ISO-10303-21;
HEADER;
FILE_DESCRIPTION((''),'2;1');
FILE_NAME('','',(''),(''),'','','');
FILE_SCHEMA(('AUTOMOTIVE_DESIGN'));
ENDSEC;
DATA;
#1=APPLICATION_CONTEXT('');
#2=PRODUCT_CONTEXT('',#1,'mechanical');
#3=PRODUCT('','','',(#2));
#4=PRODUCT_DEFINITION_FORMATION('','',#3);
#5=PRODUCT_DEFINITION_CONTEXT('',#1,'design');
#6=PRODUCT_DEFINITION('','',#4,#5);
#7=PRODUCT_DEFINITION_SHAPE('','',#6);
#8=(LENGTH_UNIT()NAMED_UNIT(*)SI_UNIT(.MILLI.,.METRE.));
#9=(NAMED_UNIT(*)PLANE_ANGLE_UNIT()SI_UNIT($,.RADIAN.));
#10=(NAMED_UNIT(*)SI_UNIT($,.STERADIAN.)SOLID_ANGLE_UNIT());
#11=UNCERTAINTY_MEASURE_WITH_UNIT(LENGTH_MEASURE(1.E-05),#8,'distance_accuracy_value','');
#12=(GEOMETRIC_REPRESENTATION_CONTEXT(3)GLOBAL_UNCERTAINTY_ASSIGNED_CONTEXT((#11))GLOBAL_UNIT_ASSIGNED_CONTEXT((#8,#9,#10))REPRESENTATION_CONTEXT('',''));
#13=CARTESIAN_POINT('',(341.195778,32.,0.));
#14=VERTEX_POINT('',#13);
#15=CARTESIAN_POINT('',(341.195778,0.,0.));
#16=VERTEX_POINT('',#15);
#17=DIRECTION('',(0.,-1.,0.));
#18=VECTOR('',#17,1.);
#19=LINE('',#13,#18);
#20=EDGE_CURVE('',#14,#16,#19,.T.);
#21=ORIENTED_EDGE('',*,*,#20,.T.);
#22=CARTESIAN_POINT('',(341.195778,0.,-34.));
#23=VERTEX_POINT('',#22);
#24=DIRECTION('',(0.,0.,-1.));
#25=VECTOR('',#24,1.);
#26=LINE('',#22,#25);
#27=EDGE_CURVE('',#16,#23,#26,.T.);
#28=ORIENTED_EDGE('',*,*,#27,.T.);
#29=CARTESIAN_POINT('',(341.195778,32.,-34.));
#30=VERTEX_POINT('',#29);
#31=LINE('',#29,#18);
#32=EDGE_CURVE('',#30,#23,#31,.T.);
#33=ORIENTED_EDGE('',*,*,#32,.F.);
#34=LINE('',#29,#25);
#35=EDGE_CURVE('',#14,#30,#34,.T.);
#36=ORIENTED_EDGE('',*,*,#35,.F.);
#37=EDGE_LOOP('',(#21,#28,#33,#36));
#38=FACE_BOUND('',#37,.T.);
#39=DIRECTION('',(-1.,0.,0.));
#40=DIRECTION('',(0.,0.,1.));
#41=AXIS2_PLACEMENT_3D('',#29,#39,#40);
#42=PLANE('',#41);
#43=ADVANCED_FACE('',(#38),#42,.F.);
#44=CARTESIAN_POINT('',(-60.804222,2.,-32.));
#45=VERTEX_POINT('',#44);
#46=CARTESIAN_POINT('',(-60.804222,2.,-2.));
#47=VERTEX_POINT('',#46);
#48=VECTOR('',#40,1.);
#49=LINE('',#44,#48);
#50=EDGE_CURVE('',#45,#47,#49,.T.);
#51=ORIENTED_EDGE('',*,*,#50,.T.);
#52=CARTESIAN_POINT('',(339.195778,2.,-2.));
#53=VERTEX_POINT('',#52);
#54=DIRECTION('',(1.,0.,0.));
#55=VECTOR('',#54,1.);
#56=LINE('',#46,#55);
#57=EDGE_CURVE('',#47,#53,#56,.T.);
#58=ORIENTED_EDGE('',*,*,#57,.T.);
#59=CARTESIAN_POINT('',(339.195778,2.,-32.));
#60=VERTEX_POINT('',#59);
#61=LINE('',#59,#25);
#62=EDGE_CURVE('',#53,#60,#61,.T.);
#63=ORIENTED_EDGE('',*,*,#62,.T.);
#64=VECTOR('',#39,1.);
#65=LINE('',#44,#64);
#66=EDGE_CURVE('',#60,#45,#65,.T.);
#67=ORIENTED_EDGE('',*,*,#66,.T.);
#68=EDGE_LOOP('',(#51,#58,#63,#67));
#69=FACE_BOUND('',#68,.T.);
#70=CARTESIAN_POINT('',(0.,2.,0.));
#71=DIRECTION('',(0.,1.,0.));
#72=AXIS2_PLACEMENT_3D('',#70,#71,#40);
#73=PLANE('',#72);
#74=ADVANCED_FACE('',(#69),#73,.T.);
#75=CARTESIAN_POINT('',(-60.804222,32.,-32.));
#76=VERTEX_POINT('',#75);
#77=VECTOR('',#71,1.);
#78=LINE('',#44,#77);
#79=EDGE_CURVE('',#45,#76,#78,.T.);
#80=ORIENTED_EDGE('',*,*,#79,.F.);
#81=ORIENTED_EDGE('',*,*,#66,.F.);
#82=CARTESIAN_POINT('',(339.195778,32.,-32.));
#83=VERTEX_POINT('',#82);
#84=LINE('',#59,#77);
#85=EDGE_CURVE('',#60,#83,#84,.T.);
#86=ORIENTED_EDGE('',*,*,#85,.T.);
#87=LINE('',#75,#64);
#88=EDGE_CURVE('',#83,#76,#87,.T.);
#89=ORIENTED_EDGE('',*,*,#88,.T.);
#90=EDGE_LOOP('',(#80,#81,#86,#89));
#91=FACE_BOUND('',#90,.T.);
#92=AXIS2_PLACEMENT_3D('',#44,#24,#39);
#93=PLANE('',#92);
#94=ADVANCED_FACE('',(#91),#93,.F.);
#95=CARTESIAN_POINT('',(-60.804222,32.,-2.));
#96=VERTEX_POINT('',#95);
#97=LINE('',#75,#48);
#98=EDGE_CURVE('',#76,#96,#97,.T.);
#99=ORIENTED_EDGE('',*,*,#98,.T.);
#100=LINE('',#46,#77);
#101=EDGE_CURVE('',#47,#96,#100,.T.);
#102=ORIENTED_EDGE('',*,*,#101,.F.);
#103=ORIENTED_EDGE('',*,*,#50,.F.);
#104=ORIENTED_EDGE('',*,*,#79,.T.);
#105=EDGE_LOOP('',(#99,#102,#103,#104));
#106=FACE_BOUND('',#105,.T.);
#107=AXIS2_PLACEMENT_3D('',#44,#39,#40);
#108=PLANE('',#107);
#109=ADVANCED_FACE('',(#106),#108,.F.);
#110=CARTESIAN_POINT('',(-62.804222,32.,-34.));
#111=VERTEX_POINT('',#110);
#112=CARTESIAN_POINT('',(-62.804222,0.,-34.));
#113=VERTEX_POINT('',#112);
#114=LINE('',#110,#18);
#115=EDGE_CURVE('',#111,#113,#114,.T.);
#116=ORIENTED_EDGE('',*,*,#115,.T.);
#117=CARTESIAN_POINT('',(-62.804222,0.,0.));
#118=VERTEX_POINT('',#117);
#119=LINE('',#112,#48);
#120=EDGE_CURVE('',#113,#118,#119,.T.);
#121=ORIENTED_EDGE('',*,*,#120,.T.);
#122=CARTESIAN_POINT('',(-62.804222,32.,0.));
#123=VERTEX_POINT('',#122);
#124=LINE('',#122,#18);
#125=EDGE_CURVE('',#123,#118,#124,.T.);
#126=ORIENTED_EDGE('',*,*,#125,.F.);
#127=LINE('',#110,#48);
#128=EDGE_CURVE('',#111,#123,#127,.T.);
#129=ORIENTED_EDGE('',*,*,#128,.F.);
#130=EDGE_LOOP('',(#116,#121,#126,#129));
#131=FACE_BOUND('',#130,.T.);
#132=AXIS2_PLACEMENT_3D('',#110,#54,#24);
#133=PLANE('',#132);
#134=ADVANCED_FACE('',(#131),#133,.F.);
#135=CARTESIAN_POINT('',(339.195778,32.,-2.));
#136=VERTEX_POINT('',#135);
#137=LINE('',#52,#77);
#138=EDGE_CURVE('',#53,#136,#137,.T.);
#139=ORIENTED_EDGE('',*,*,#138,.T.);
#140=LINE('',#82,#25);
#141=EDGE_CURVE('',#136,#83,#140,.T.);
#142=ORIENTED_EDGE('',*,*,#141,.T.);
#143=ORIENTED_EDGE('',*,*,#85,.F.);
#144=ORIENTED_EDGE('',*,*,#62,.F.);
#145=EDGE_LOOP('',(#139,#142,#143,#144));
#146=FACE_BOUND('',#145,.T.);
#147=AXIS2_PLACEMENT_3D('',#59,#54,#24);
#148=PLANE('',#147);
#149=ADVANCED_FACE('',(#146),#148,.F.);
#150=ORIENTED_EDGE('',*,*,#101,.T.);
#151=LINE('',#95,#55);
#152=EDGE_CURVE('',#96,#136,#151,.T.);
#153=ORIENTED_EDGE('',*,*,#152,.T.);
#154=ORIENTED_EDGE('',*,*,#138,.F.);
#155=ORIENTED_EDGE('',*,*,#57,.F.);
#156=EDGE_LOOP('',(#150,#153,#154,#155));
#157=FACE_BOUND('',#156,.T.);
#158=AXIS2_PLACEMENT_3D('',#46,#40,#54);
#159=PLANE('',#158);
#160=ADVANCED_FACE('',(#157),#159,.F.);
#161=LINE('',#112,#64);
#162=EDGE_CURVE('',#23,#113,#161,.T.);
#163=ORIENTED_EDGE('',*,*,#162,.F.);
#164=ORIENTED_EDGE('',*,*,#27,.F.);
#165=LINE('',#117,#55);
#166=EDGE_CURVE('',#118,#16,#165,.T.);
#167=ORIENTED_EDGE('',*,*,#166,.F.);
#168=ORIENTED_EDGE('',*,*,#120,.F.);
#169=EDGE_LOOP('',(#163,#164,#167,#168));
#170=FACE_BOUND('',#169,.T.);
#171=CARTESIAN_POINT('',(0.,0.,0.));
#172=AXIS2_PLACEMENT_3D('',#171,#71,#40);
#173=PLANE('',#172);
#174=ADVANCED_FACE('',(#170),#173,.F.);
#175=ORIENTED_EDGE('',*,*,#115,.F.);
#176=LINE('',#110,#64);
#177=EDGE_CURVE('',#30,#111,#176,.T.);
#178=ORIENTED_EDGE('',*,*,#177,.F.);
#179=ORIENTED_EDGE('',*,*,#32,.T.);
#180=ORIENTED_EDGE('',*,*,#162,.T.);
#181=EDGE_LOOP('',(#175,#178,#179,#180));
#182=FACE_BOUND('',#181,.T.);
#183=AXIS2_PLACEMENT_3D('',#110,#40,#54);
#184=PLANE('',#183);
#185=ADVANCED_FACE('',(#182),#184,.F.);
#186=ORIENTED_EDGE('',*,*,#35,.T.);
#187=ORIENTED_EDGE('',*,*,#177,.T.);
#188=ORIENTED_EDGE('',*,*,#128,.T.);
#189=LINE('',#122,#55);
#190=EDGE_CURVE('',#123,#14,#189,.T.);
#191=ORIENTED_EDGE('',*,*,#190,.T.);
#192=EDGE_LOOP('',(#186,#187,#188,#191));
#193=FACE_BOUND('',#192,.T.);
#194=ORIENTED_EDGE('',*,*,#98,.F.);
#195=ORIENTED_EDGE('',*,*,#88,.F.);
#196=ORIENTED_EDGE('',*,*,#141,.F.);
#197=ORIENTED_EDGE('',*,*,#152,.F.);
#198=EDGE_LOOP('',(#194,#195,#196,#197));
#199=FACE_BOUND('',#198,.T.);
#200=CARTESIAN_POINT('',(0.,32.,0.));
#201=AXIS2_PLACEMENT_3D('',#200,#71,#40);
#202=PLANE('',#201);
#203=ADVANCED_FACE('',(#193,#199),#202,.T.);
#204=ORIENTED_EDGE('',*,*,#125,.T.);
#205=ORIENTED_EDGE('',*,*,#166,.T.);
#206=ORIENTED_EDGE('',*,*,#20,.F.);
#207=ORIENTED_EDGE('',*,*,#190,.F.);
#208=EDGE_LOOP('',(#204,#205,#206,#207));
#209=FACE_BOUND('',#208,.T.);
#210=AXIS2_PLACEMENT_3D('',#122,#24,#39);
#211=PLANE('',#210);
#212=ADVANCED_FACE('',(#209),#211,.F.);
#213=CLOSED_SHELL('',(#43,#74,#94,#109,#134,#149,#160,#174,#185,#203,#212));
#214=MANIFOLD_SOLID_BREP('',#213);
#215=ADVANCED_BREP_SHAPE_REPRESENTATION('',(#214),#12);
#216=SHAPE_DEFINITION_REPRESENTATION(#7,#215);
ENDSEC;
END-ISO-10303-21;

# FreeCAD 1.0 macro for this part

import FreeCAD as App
import Part
import Sketcher
from FreeCAD import Vector
Q = App.Units.Quantity

doc = App.newDocument("Part")
body = doc.addObject("PartDesign::Body", "Body")

# Sketch on XZ plane
sketch1 = doc.addObject("Sketcher::SketchObject", "Sketch")
body.addObject(sketch1)
sketch1.AttachmentSupport = (doc.XZ_Plane, [""])
sketch1.MapMode = "FlatFace"
sketch1.addGeometry(Part.LineSegment(Vector(-63, -34, 0), Vector(-63, 0, 0)), False)
sketch1.addGeometry(Part.LineSegment(Vector(-63, 0, 0), Vector(341, 0, 0)), False)
sketch1.addGeometry(Part.LineSegment(Vector(341, 0, 0), Vector(341, -34, 0)), False)
sketch1.addGeometry(Part.LineSegment(Vector(341, -34, 0), Vector(-63, -34, 0)), False)
sketch1.addConstraint(Sketcher.Constraint("Coincident", 0, 2, 1, 1))
sketch1.addConstraint(Sketcher.Constraint("Coincident", 1, 2, 2, 1))
sketch1.addConstraint(Sketcher.Constraint("Coincident", 2, 2, 3, 1))
sketch1.addConstraint(Sketcher.Constraint("Coincident", 3, 2, 0, 1))
sketch1.addConstraint(Sketcher.Constraint("Vertical", 0))
sketch1.addConstraint(Sketcher.Constraint("Horizontal", 1))
sketch1.addConstraint(Sketcher.Constraint("Vertical", 2))
sketch1.addConstraint(Sketcher.Constraint("Horizontal", 3))
sketch1.addConstraint(Sketcher.Constraint("PointOnObject", 0, 2, -1))
sketch1.addConstraint(Sketcher.Constraint("DistanceX", 1, 1, 1, 2, Q("404 mm")))
sketch1.addConstraint(Sketcher.Constraint("DistanceY", 0, 1, 0, 2, Q("34 mm")))
sketch1.addConstraint(Sketcher.Constraint("DistanceX", 0, 2, -1, 1, Q("62.804222 mm")))
pad1 = doc.addObject("PartDesign::Pad", "Pad")
body.addObject(pad1)
pad1.Profile = sketch1
pad1.Length = 32
pad1.Reversed = True

# Sketch on XZ plane
sketch2 = doc.addObject("Sketcher::SketchObject", "Sketch001")
body.addObject(sketch2)
sketch2.AttachmentSupport = (doc.XZ_Plane, [""])
sketch2.MapMode = "FlatFace"
sketch2.AttachmentOffset = App.Placement(Vector(0, 0, -32), App.Rotation())
sketch2.addGeometry(Part.LineSegment(Vector(-61, -32, 0), Vector(-61, -2, 0)), False)
sketch2.addGeometry(Part.LineSegment(Vector(-61, -2, 0), Vector(339, -2, 0)), False)
sketch2.addGeometry(Part.LineSegment(Vector(339, -2, 0), Vector(339, -32, 0)), False)
sketch2.addGeometry(Part.LineSegment(Vector(339, -32, 0), Vector(-61, -32, 0)), False)
sketch2.addConstraint(Sketcher.Constraint("Coincident", 0, 2, 1, 1))
sketch2.addConstraint(Sketcher.Constraint("Coincident", 1, 2, 2, 1))
sketch2.addConstraint(Sketcher.Constraint("Coincident", 2, 2, 3, 1))
sketch2.addConstraint(Sketcher.Constraint("Coincident", 3, 2, 0, 1))
sketch2.addConstraint(Sketcher.Constraint("Vertical", 0))
sketch2.addConstraint(Sketcher.Constraint("Horizontal", 1))
sketch2.addConstraint(Sketcher.Constraint("Vertical", 2))
sketch2.addConstraint(Sketcher.Constraint("Horizontal", 3))
sketch2.addConstraint(Sketcher.Constraint("DistanceX", 1, 1, 1, 2, Q("400 mm")))
sketch2.addConstraint(Sketcher.Constraint("DistanceY", 0, 1, 0, 2, Q("30 mm")))
sketch2.addConstraint(Sketcher.Constraint("DistanceY", 0, 2, -1, 1, Q("2 mm")))
sketch2.addConstraint(Sketcher.Constraint("DistanceX", 0, 2, -1, 1, Q("60.804222 mm")))
pocket1 = doc.addObject("PartDesign::Pocket", "Pocket")
body.addObject(pocket1)
pocket1.Profile = sketch2
pocket1.Length = 30
pocket1.Reversed = True

doc.recompute()
